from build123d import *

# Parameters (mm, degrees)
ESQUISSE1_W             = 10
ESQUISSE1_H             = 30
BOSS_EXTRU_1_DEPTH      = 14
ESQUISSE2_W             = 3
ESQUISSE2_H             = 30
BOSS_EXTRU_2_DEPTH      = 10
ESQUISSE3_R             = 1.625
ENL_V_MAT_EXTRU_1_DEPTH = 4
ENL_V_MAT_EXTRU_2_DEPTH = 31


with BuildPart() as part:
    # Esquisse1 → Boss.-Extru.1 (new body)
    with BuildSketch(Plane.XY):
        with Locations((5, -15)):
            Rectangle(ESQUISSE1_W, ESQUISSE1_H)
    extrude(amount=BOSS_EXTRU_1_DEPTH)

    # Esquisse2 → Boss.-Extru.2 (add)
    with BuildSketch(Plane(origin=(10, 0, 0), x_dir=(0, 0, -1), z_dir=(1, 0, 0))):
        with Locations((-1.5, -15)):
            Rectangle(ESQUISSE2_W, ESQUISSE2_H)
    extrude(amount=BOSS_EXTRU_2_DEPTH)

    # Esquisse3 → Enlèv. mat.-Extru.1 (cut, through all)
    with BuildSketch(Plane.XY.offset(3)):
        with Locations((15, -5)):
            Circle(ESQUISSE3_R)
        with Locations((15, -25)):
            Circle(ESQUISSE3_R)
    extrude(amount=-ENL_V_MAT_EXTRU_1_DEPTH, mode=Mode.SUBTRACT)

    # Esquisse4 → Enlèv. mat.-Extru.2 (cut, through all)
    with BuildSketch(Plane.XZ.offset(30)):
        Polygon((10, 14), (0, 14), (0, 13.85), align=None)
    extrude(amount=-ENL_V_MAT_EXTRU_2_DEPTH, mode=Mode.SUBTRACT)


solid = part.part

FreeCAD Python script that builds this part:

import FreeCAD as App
import Part
import Sketcher

V = App.Vector
Q = App.Units.Quantity

doc = App.newDocument("Part")
body = doc.addObject("PartDesign::Body", "Body")

sketch1 = body.newObject("Sketcher::SketchObject", "Sketch")
sketch1.AttachmentSupport = (doc.getObject("XY_Plane"), [""])
sketch1.MapMode = "FlatFace"
sketch1.addGeometry([
    Part.LineSegment(V(0, 0, 0), V(0, -30, 0)),
    Part.LineSegment(V(0, -30, 0), V(10, -30, 0)),
    Part.LineSegment(V(10, -30, 0), V(10, 0, 0)),
    Part.LineSegment(V(10, 0, 0), V(0, 0, 0)),
], False)
sketch1.addConstraint([
    Sketcher.Constraint("Coincident", 0, 2, 1, 1),
    Sketcher.Constraint("Coincident", 1, 2, 2, 1),
    Sketcher.Constraint("Coincident", 2, 2, 3, 1),
    Sketcher.Constraint("Coincident", 3, 2, 0, 1),
    Sketcher.Constraint("Vertical", 0),
    Sketcher.Constraint("Horizontal", 1),
    Sketcher.Constraint("Vertical", 2),
    Sketcher.Constraint("Horizontal", 3),
    Sketcher.Constraint("Coincident", 3, 2, -1, 1),
    Sketcher.Constraint("DistanceX", 1, 1, 1, 2, Q("10 mm")),
    Sketcher.Constraint("DistanceY", 0, 2, 0, 1, Q("30 mm")),
])
pad1 = body.newObject("PartDesign::Pad", "Pad")
pad1.Profile = sketch1
pad1.Length = 14

sketch2 = body.newObject("Sketcher::SketchObject", "Sketch001")
sketch2.AttachmentSupport = (doc.getObject("YZ_Plane"), [""])
sketch2.MapMode = "FlatFace"
sketch2.AttachmentOffset = App.Placement(V(0, 0, 10), App.Rotation())
sketch2.addGeometry([
    Part.LineSegment(V(0, 3, 0), V(-30, 3, 0)),
    Part.LineSegment(V(-30, 3, 0), V(-30, 0, 0)),
    Part.LineSegment(V(-30, 0, 0), V(0, 0, 0)),
    Part.LineSegment(V(0, 0, 0), V(0, 3, 0)),
], False)
sketch2.addConstraint([
    Sketcher.Constraint("Coincident", 0, 2, 1, 1),
    Sketcher.Constraint("Coincident", 1, 2, 2, 1),
    Sketcher.Constraint("Coincident", 2, 2, 3, 1),
    Sketcher.Constraint("Coincident", 3, 2, 0, 1),
    Sketcher.Constraint("Horizontal", 0),
    Sketcher.Constraint("Vertical", 1),
    Sketcher.Constraint("Horizontal", 2),
    Sketcher.Constraint("Vertical", 3),
    Sketcher.Constraint("Coincident", 2, 2, -1, 1),
    Sketcher.Constraint("DistanceX", 0, 2, 0, 1, Q("30 mm")),
    Sketcher.Constraint("DistanceY", 1, 2, 1, 1, Q("3 mm")),
])
pad2 = body.newObject("PartDesign::Pad", "Pad001")
pad2.Profile = sketch2
pad2.Length = 10

sketch3 = body.newObject("Sketcher::SketchObject", "Sketch002")
sketch3.AttachmentSupport = (doc.getObject("XY_Plane"), [""])
sketch3.MapMode = "FlatFace"
sketch3.AttachmentOffset = App.Placement(V(0, 0, 3), App.Rotation())
sketch3.addGeometry([
    Part.Circle(V(15, -5, 0), V(0, 0, 1), 1.6),
    Part.Circle(V(15, -25, 0), V(0, 0, 1), 1.6),
], False)
sketch3.addConstraint([
    Sketcher.Constraint("Equal", 0, 1),
    Sketcher.Constraint("Vertical", 0, 3, 1, 3),
    Sketcher.Constraint("Diameter", 0, Q("3.25 mm")),
    Sketcher.Constraint("DistanceX", -1, 1, 0, 3, Q("15 mm")),
    Sketcher.Constraint("DistanceY", 0, 3, -1, 1, Q("5 mm")),
    Sketcher.Constraint("DistanceY", 1, 3, -1, 1, Q("25 mm")),
])
pocket1 = body.newObject("PartDesign::Pocket", "Pocket")
pocket1.Profile = sketch3
pocket1.Type = "ThroughAll"

sketch4 = body.newObject("Sketcher::SketchObject", "Sketch003")
sketch4.AttachmentSupport = (doc.getObject("XZ_Plane"), [""])
sketch4.MapMode = "FlatFace"
sketch4.AttachmentOffset = App.Placement(V(0, 0, 30), App.Rotation())
sketch4.addGeometry([
    Part.LineSegment(V(10, 14, 0), V(0, 14, 0)),
    Part.LineSegment(V(0, 14, 0), V(0, 13.85, 0)),
    Part.LineSegment(V(0, 13.85, 0), V(10, 14, 0)),
], False)
sketch4.addConstraint([
    Sketcher.Constraint("Coincident", 0, 2, 1, 1),
    Sketcher.Constraint("Coincident", 1, 2, 2, 1),
    Sketcher.Constraint("Coincident", 2, 2, 0, 1),
    Sketcher.Constraint("Horizontal", 0),
    Sketcher.Constraint("Vertical", 1),
    Sketcher.Constraint("PointOnObject", 0, 2, -2),
    Sketcher.Constraint("DistanceX", 0, 2, 0, 1, Q("10 mm")),
    Sketcher.Constraint("DistanceY", -1, 1, 0, 2, Q("14 mm")),
    Sketcher.Constraint("DistanceY", 1, 2, 1, 1, Q("0.15 mm")),
])
pocket2 = body.newObject("PartDesign::Pocket", "Pocket001")
pocket2.Profile = sketch4
pocket2.Type = "ThroughAll"

doc.recompute()
